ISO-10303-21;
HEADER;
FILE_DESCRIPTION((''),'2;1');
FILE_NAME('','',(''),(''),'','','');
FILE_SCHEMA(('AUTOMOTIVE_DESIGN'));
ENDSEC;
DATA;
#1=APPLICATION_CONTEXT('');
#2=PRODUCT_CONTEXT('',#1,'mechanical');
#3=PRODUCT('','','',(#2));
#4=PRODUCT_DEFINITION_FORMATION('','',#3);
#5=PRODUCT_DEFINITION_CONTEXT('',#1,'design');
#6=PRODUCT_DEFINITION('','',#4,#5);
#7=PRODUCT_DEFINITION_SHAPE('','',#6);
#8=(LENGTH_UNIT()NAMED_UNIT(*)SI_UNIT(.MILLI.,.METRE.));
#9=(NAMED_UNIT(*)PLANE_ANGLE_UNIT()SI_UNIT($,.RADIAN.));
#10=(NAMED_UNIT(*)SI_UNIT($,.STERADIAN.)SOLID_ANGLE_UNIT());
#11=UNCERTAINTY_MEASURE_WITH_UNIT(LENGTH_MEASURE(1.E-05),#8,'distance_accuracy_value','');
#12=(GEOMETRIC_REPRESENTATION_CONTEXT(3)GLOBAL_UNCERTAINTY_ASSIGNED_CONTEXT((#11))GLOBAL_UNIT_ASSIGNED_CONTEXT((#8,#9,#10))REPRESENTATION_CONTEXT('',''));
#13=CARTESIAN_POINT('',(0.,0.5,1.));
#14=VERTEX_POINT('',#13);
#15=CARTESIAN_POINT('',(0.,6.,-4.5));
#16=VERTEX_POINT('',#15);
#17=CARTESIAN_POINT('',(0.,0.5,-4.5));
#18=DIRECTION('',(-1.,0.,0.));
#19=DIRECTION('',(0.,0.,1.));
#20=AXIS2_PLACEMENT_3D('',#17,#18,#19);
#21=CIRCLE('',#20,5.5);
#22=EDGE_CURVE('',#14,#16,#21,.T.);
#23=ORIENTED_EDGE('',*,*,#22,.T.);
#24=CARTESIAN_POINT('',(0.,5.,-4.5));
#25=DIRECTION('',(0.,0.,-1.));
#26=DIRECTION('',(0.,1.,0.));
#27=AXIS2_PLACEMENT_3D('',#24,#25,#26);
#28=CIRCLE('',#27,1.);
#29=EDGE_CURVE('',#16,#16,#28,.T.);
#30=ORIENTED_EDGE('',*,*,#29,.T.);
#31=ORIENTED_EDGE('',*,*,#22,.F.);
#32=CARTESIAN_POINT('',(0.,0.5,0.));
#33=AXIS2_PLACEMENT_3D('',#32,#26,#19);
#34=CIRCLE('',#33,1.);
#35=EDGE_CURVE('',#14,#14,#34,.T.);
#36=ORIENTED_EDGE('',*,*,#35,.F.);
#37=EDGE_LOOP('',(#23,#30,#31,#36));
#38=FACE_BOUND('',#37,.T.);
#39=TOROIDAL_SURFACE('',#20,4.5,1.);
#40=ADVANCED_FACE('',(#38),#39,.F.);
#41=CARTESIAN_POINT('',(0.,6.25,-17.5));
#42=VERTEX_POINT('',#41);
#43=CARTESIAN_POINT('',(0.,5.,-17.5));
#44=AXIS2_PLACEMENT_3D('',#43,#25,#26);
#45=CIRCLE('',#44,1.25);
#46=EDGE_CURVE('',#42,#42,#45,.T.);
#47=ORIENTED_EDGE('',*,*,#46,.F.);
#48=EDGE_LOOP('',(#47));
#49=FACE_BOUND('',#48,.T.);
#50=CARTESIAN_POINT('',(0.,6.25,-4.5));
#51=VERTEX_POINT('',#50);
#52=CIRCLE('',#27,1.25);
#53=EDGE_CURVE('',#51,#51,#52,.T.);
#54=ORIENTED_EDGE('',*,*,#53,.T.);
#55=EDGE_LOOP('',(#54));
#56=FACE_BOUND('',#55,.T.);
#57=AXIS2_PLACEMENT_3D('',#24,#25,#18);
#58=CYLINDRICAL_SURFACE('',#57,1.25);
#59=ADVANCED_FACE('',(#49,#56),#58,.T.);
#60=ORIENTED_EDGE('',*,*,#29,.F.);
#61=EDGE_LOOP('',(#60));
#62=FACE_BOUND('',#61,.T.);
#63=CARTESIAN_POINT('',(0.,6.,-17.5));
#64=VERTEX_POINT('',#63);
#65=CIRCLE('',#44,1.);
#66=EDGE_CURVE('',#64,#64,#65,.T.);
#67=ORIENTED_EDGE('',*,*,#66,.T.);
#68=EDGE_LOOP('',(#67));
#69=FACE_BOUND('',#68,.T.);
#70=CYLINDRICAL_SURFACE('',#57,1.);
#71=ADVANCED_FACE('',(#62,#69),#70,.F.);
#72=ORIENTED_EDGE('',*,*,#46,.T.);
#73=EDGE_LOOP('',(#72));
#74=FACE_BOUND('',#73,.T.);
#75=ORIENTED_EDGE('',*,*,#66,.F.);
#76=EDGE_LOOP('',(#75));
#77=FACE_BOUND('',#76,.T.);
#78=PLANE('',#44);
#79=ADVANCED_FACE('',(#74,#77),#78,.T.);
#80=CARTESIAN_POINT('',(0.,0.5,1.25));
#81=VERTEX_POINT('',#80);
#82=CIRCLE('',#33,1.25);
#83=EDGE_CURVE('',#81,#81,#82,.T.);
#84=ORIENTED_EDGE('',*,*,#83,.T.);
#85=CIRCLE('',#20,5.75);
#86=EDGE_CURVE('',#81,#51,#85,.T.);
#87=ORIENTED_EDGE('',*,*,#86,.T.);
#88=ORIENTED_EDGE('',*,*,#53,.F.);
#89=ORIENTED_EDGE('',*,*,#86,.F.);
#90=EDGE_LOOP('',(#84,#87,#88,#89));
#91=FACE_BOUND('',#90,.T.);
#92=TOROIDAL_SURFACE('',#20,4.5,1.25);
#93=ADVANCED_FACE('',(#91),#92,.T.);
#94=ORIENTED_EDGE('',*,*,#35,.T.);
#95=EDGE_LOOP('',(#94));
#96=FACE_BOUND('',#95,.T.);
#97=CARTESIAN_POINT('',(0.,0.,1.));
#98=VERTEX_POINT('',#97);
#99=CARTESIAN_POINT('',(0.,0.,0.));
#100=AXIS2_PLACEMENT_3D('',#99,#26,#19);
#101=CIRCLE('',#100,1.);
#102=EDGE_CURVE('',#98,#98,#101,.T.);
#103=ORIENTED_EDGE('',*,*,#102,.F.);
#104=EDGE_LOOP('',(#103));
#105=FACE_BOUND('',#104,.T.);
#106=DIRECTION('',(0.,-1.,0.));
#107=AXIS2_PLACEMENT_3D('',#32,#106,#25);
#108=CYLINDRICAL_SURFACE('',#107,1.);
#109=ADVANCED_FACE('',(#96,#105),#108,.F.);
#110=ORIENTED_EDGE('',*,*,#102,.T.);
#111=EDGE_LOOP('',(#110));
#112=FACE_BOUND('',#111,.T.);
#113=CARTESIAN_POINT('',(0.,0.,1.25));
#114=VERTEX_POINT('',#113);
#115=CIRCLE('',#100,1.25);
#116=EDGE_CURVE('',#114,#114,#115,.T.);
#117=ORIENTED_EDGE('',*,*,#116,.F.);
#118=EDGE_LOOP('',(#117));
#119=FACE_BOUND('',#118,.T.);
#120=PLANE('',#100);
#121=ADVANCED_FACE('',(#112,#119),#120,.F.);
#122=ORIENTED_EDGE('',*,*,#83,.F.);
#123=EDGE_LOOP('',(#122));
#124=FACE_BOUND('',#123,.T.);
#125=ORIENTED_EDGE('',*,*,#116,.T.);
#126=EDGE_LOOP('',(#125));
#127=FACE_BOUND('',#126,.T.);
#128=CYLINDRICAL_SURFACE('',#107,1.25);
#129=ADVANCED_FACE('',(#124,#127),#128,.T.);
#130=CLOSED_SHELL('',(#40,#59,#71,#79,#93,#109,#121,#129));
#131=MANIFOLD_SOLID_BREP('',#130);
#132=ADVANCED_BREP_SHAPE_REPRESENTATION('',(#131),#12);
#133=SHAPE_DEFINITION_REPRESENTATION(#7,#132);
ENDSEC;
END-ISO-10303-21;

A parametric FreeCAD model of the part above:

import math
import FreeCAD as App
import Part
import Sketcher
from FreeCAD import Vector

doc = App.newDocument("Part")
body = doc.addObject("PartDesign::Body", "Body")

# Sketch on XZ plane
sketch1 = body.newObject("Sketcher::SketchObject", "Sketch")
sketch1.AttachmentSupport = (doc.getObject("XZ_Plane"), [""])
sketch1.MapMode = "FlatFace"
sketch1.addGeometry([
    Part.Circle(Vector(0, 0, 0), Vector(0, 0, 1), 1.2),
    Part.Circle(Vector(0, 0, 0), Vector(0, 0, 1), 1),
], False)
sketch1.addConstraint([
    Sketcher.Constraint("Coincident", 0, 3, -1, 1),
    Sketcher.Constraint("Coincident", 1, 3, -1, 1),
    Sketcher.Constraint("Diameter", 1, 2.0),
    Sketcher.Constraint("Diameter", 0, 2.5),
])

# Sketch on YZ plane
sketch2 = body.newObject("Sketcher::SketchObject", "Sketch001")
sketch2.AttachmentSupport = (doc.getObject("YZ_Plane"), [""])
sketch2.MapMode = "FlatFace"
sketch2.addGeometry([
    Part.LineSegment(Vector(0, 0, 0), Vector(0.5, 0, 0)),
    Part.ArcOfCircle(Part.Circle(Vector(0.5, -4.5, 0), Vector(0, 0, 1), 4.5), math.radians(0), math.radians(90)),
    Part.LineSegment(Vector(5, -4.5, 0), Vector(5, -17.5, 0)),
], False)
sketch2.addConstraint([
    Sketcher.Constraint("Tangent", 0, 2, 1, 2),
    Sketcher.Constraint("Tangent", 1, 1, 2, 1),
    Sketcher.Constraint("Horizontal", 0),
    Sketcher.Constraint("Vertical", 2),
    Sketcher.Constraint("Coincident", 0, 1, -1, 1),
    Sketcher.Constraint("Radius", 1, 4.5),
    Sketcher.Constraint("DistanceY", 2, 2, 2, 1, 13.0),
    Sketcher.Constraint("DistanceX", 0, 1, 0, 2, 0.5),
])
doc.recompute()

additivepipe = body.newObject("PartDesign::AdditivePipe", "AdditivePipe")
additivepipe.Profile = sketch1
additivepipe.Spine = (sketch2, ["Edge1", "Edge2", "Edge3"])

doc.recompute()
